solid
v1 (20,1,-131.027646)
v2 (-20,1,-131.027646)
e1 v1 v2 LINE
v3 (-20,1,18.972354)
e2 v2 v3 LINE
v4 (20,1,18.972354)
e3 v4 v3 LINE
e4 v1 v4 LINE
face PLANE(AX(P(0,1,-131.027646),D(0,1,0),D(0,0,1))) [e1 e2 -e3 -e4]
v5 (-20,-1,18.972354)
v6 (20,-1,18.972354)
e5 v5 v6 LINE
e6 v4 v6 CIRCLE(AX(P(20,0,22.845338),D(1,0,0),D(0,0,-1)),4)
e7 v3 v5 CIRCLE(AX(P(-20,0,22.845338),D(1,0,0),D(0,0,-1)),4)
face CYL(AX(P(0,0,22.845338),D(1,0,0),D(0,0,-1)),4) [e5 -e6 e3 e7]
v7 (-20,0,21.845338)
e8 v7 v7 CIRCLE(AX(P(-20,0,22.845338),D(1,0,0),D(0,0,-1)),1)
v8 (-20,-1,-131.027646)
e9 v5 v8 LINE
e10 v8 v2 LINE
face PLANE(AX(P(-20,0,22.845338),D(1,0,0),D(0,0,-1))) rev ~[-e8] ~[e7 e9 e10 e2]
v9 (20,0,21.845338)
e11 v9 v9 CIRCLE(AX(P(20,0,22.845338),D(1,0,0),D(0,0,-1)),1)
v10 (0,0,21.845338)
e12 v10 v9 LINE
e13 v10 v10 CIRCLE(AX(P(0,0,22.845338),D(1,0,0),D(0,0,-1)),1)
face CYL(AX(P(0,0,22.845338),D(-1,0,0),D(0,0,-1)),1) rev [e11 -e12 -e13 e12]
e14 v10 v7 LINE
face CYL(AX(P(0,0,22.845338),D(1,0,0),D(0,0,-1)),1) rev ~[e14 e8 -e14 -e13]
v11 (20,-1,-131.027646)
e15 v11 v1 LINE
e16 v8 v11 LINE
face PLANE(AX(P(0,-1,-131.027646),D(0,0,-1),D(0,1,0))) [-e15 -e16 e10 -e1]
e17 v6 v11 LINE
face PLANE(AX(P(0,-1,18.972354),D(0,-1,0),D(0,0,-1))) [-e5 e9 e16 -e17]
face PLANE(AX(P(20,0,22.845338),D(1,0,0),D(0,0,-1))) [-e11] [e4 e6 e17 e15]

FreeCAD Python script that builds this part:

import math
import FreeCAD as App
import Part
import Sketcher

V = App.Vector
Q = App.Units.Quantity

doc = App.newDocument("Part")
body = doc.addObject("PartDesign::Body", "Body")

sketch1 = body.newObject("Sketcher::SketchObject", "Sketch")
sketch1.AttachmentSupport = (doc.getObject("YZ_Plane"), [""])
sketch1.MapMode = "FlatFace"
sketch1.addGeometry(Part.ArcOfCircle(Part.Circle(V(0, 22.845338, 0), V(0, 0, 1), 4), math.radians(-75.522488), math.radians(255.522488)), False)
sketch1.addGeometry(Part.LineSegment(V(-1, 18.972354, 0), V(-1, -131.027646, 0)), False)
sketch1.addGeometry(Part.LineSegment(V(-1, -131.027646, 0), V(1, -131.027646, 0)), False)
sketch1.addGeometry(Part.LineSegment(V(1, -131.027646, 0), V(1, 18.972354, 0)), False)
sketch1.addGeometry(Part.Circle(V(0, 22.845338, 0), V(0, 0, 1), 1), False)
sketch1.addConstraint(Sketcher.Constraint("Coincident", 0, 2, 1, 1))
sketch1.addConstraint(Sketcher.Constraint("Coincident", 1, 2, 2, 1))
sketch1.addConstraint(Sketcher.Constraint("Coincident", 2, 2, 3, 1))
sketch1.addConstraint(Sketcher.Constraint("Coincident", 3, 2, 0, 1))
sketch1.addConstraint(Sketcher.Constraint("Vertical", 1))
sketch1.addConstraint(Sketcher.Constraint("Horizontal", 2))
sketch1.addConstraint(Sketcher.Constraint("Vertical", 3))
sketch1.addConstraint(Sketcher.Constraint("Coincident", 4, 3, 0, 3))
sketch1.addConstraint(Sketcher.Constraint("Symmetric", 0, 2, 3, 2, -2))
sketch1.addConstraint(Sketcher.Constraint("Diameter", 4, Q("2 mm")))
sketch1.addConstraint(Sketcher.Constraint("Radius", 0, Q("4 mm")))
sketch1.addConstraint(Sketcher.Constraint("DistanceX", 2, 1, 2, 2, Q("2 mm")))
sketch1.addConstraint(Sketcher.Constraint("DistanceY", 1, 2, 1, 1, Q("150 mm")))
sketch1.addConstraint(Sketcher.Constraint("DistanceY", -1, 1, 0, 3, Q("22.845338 mm")))
pad1 = body.newObject("PartDesign::Pad", "Pad")
pad1.Profile = sketch1
pad1.Type = "TwoLengths"
pad1.Length = 20
pad1.Length2 = 20

doc.recompute()
